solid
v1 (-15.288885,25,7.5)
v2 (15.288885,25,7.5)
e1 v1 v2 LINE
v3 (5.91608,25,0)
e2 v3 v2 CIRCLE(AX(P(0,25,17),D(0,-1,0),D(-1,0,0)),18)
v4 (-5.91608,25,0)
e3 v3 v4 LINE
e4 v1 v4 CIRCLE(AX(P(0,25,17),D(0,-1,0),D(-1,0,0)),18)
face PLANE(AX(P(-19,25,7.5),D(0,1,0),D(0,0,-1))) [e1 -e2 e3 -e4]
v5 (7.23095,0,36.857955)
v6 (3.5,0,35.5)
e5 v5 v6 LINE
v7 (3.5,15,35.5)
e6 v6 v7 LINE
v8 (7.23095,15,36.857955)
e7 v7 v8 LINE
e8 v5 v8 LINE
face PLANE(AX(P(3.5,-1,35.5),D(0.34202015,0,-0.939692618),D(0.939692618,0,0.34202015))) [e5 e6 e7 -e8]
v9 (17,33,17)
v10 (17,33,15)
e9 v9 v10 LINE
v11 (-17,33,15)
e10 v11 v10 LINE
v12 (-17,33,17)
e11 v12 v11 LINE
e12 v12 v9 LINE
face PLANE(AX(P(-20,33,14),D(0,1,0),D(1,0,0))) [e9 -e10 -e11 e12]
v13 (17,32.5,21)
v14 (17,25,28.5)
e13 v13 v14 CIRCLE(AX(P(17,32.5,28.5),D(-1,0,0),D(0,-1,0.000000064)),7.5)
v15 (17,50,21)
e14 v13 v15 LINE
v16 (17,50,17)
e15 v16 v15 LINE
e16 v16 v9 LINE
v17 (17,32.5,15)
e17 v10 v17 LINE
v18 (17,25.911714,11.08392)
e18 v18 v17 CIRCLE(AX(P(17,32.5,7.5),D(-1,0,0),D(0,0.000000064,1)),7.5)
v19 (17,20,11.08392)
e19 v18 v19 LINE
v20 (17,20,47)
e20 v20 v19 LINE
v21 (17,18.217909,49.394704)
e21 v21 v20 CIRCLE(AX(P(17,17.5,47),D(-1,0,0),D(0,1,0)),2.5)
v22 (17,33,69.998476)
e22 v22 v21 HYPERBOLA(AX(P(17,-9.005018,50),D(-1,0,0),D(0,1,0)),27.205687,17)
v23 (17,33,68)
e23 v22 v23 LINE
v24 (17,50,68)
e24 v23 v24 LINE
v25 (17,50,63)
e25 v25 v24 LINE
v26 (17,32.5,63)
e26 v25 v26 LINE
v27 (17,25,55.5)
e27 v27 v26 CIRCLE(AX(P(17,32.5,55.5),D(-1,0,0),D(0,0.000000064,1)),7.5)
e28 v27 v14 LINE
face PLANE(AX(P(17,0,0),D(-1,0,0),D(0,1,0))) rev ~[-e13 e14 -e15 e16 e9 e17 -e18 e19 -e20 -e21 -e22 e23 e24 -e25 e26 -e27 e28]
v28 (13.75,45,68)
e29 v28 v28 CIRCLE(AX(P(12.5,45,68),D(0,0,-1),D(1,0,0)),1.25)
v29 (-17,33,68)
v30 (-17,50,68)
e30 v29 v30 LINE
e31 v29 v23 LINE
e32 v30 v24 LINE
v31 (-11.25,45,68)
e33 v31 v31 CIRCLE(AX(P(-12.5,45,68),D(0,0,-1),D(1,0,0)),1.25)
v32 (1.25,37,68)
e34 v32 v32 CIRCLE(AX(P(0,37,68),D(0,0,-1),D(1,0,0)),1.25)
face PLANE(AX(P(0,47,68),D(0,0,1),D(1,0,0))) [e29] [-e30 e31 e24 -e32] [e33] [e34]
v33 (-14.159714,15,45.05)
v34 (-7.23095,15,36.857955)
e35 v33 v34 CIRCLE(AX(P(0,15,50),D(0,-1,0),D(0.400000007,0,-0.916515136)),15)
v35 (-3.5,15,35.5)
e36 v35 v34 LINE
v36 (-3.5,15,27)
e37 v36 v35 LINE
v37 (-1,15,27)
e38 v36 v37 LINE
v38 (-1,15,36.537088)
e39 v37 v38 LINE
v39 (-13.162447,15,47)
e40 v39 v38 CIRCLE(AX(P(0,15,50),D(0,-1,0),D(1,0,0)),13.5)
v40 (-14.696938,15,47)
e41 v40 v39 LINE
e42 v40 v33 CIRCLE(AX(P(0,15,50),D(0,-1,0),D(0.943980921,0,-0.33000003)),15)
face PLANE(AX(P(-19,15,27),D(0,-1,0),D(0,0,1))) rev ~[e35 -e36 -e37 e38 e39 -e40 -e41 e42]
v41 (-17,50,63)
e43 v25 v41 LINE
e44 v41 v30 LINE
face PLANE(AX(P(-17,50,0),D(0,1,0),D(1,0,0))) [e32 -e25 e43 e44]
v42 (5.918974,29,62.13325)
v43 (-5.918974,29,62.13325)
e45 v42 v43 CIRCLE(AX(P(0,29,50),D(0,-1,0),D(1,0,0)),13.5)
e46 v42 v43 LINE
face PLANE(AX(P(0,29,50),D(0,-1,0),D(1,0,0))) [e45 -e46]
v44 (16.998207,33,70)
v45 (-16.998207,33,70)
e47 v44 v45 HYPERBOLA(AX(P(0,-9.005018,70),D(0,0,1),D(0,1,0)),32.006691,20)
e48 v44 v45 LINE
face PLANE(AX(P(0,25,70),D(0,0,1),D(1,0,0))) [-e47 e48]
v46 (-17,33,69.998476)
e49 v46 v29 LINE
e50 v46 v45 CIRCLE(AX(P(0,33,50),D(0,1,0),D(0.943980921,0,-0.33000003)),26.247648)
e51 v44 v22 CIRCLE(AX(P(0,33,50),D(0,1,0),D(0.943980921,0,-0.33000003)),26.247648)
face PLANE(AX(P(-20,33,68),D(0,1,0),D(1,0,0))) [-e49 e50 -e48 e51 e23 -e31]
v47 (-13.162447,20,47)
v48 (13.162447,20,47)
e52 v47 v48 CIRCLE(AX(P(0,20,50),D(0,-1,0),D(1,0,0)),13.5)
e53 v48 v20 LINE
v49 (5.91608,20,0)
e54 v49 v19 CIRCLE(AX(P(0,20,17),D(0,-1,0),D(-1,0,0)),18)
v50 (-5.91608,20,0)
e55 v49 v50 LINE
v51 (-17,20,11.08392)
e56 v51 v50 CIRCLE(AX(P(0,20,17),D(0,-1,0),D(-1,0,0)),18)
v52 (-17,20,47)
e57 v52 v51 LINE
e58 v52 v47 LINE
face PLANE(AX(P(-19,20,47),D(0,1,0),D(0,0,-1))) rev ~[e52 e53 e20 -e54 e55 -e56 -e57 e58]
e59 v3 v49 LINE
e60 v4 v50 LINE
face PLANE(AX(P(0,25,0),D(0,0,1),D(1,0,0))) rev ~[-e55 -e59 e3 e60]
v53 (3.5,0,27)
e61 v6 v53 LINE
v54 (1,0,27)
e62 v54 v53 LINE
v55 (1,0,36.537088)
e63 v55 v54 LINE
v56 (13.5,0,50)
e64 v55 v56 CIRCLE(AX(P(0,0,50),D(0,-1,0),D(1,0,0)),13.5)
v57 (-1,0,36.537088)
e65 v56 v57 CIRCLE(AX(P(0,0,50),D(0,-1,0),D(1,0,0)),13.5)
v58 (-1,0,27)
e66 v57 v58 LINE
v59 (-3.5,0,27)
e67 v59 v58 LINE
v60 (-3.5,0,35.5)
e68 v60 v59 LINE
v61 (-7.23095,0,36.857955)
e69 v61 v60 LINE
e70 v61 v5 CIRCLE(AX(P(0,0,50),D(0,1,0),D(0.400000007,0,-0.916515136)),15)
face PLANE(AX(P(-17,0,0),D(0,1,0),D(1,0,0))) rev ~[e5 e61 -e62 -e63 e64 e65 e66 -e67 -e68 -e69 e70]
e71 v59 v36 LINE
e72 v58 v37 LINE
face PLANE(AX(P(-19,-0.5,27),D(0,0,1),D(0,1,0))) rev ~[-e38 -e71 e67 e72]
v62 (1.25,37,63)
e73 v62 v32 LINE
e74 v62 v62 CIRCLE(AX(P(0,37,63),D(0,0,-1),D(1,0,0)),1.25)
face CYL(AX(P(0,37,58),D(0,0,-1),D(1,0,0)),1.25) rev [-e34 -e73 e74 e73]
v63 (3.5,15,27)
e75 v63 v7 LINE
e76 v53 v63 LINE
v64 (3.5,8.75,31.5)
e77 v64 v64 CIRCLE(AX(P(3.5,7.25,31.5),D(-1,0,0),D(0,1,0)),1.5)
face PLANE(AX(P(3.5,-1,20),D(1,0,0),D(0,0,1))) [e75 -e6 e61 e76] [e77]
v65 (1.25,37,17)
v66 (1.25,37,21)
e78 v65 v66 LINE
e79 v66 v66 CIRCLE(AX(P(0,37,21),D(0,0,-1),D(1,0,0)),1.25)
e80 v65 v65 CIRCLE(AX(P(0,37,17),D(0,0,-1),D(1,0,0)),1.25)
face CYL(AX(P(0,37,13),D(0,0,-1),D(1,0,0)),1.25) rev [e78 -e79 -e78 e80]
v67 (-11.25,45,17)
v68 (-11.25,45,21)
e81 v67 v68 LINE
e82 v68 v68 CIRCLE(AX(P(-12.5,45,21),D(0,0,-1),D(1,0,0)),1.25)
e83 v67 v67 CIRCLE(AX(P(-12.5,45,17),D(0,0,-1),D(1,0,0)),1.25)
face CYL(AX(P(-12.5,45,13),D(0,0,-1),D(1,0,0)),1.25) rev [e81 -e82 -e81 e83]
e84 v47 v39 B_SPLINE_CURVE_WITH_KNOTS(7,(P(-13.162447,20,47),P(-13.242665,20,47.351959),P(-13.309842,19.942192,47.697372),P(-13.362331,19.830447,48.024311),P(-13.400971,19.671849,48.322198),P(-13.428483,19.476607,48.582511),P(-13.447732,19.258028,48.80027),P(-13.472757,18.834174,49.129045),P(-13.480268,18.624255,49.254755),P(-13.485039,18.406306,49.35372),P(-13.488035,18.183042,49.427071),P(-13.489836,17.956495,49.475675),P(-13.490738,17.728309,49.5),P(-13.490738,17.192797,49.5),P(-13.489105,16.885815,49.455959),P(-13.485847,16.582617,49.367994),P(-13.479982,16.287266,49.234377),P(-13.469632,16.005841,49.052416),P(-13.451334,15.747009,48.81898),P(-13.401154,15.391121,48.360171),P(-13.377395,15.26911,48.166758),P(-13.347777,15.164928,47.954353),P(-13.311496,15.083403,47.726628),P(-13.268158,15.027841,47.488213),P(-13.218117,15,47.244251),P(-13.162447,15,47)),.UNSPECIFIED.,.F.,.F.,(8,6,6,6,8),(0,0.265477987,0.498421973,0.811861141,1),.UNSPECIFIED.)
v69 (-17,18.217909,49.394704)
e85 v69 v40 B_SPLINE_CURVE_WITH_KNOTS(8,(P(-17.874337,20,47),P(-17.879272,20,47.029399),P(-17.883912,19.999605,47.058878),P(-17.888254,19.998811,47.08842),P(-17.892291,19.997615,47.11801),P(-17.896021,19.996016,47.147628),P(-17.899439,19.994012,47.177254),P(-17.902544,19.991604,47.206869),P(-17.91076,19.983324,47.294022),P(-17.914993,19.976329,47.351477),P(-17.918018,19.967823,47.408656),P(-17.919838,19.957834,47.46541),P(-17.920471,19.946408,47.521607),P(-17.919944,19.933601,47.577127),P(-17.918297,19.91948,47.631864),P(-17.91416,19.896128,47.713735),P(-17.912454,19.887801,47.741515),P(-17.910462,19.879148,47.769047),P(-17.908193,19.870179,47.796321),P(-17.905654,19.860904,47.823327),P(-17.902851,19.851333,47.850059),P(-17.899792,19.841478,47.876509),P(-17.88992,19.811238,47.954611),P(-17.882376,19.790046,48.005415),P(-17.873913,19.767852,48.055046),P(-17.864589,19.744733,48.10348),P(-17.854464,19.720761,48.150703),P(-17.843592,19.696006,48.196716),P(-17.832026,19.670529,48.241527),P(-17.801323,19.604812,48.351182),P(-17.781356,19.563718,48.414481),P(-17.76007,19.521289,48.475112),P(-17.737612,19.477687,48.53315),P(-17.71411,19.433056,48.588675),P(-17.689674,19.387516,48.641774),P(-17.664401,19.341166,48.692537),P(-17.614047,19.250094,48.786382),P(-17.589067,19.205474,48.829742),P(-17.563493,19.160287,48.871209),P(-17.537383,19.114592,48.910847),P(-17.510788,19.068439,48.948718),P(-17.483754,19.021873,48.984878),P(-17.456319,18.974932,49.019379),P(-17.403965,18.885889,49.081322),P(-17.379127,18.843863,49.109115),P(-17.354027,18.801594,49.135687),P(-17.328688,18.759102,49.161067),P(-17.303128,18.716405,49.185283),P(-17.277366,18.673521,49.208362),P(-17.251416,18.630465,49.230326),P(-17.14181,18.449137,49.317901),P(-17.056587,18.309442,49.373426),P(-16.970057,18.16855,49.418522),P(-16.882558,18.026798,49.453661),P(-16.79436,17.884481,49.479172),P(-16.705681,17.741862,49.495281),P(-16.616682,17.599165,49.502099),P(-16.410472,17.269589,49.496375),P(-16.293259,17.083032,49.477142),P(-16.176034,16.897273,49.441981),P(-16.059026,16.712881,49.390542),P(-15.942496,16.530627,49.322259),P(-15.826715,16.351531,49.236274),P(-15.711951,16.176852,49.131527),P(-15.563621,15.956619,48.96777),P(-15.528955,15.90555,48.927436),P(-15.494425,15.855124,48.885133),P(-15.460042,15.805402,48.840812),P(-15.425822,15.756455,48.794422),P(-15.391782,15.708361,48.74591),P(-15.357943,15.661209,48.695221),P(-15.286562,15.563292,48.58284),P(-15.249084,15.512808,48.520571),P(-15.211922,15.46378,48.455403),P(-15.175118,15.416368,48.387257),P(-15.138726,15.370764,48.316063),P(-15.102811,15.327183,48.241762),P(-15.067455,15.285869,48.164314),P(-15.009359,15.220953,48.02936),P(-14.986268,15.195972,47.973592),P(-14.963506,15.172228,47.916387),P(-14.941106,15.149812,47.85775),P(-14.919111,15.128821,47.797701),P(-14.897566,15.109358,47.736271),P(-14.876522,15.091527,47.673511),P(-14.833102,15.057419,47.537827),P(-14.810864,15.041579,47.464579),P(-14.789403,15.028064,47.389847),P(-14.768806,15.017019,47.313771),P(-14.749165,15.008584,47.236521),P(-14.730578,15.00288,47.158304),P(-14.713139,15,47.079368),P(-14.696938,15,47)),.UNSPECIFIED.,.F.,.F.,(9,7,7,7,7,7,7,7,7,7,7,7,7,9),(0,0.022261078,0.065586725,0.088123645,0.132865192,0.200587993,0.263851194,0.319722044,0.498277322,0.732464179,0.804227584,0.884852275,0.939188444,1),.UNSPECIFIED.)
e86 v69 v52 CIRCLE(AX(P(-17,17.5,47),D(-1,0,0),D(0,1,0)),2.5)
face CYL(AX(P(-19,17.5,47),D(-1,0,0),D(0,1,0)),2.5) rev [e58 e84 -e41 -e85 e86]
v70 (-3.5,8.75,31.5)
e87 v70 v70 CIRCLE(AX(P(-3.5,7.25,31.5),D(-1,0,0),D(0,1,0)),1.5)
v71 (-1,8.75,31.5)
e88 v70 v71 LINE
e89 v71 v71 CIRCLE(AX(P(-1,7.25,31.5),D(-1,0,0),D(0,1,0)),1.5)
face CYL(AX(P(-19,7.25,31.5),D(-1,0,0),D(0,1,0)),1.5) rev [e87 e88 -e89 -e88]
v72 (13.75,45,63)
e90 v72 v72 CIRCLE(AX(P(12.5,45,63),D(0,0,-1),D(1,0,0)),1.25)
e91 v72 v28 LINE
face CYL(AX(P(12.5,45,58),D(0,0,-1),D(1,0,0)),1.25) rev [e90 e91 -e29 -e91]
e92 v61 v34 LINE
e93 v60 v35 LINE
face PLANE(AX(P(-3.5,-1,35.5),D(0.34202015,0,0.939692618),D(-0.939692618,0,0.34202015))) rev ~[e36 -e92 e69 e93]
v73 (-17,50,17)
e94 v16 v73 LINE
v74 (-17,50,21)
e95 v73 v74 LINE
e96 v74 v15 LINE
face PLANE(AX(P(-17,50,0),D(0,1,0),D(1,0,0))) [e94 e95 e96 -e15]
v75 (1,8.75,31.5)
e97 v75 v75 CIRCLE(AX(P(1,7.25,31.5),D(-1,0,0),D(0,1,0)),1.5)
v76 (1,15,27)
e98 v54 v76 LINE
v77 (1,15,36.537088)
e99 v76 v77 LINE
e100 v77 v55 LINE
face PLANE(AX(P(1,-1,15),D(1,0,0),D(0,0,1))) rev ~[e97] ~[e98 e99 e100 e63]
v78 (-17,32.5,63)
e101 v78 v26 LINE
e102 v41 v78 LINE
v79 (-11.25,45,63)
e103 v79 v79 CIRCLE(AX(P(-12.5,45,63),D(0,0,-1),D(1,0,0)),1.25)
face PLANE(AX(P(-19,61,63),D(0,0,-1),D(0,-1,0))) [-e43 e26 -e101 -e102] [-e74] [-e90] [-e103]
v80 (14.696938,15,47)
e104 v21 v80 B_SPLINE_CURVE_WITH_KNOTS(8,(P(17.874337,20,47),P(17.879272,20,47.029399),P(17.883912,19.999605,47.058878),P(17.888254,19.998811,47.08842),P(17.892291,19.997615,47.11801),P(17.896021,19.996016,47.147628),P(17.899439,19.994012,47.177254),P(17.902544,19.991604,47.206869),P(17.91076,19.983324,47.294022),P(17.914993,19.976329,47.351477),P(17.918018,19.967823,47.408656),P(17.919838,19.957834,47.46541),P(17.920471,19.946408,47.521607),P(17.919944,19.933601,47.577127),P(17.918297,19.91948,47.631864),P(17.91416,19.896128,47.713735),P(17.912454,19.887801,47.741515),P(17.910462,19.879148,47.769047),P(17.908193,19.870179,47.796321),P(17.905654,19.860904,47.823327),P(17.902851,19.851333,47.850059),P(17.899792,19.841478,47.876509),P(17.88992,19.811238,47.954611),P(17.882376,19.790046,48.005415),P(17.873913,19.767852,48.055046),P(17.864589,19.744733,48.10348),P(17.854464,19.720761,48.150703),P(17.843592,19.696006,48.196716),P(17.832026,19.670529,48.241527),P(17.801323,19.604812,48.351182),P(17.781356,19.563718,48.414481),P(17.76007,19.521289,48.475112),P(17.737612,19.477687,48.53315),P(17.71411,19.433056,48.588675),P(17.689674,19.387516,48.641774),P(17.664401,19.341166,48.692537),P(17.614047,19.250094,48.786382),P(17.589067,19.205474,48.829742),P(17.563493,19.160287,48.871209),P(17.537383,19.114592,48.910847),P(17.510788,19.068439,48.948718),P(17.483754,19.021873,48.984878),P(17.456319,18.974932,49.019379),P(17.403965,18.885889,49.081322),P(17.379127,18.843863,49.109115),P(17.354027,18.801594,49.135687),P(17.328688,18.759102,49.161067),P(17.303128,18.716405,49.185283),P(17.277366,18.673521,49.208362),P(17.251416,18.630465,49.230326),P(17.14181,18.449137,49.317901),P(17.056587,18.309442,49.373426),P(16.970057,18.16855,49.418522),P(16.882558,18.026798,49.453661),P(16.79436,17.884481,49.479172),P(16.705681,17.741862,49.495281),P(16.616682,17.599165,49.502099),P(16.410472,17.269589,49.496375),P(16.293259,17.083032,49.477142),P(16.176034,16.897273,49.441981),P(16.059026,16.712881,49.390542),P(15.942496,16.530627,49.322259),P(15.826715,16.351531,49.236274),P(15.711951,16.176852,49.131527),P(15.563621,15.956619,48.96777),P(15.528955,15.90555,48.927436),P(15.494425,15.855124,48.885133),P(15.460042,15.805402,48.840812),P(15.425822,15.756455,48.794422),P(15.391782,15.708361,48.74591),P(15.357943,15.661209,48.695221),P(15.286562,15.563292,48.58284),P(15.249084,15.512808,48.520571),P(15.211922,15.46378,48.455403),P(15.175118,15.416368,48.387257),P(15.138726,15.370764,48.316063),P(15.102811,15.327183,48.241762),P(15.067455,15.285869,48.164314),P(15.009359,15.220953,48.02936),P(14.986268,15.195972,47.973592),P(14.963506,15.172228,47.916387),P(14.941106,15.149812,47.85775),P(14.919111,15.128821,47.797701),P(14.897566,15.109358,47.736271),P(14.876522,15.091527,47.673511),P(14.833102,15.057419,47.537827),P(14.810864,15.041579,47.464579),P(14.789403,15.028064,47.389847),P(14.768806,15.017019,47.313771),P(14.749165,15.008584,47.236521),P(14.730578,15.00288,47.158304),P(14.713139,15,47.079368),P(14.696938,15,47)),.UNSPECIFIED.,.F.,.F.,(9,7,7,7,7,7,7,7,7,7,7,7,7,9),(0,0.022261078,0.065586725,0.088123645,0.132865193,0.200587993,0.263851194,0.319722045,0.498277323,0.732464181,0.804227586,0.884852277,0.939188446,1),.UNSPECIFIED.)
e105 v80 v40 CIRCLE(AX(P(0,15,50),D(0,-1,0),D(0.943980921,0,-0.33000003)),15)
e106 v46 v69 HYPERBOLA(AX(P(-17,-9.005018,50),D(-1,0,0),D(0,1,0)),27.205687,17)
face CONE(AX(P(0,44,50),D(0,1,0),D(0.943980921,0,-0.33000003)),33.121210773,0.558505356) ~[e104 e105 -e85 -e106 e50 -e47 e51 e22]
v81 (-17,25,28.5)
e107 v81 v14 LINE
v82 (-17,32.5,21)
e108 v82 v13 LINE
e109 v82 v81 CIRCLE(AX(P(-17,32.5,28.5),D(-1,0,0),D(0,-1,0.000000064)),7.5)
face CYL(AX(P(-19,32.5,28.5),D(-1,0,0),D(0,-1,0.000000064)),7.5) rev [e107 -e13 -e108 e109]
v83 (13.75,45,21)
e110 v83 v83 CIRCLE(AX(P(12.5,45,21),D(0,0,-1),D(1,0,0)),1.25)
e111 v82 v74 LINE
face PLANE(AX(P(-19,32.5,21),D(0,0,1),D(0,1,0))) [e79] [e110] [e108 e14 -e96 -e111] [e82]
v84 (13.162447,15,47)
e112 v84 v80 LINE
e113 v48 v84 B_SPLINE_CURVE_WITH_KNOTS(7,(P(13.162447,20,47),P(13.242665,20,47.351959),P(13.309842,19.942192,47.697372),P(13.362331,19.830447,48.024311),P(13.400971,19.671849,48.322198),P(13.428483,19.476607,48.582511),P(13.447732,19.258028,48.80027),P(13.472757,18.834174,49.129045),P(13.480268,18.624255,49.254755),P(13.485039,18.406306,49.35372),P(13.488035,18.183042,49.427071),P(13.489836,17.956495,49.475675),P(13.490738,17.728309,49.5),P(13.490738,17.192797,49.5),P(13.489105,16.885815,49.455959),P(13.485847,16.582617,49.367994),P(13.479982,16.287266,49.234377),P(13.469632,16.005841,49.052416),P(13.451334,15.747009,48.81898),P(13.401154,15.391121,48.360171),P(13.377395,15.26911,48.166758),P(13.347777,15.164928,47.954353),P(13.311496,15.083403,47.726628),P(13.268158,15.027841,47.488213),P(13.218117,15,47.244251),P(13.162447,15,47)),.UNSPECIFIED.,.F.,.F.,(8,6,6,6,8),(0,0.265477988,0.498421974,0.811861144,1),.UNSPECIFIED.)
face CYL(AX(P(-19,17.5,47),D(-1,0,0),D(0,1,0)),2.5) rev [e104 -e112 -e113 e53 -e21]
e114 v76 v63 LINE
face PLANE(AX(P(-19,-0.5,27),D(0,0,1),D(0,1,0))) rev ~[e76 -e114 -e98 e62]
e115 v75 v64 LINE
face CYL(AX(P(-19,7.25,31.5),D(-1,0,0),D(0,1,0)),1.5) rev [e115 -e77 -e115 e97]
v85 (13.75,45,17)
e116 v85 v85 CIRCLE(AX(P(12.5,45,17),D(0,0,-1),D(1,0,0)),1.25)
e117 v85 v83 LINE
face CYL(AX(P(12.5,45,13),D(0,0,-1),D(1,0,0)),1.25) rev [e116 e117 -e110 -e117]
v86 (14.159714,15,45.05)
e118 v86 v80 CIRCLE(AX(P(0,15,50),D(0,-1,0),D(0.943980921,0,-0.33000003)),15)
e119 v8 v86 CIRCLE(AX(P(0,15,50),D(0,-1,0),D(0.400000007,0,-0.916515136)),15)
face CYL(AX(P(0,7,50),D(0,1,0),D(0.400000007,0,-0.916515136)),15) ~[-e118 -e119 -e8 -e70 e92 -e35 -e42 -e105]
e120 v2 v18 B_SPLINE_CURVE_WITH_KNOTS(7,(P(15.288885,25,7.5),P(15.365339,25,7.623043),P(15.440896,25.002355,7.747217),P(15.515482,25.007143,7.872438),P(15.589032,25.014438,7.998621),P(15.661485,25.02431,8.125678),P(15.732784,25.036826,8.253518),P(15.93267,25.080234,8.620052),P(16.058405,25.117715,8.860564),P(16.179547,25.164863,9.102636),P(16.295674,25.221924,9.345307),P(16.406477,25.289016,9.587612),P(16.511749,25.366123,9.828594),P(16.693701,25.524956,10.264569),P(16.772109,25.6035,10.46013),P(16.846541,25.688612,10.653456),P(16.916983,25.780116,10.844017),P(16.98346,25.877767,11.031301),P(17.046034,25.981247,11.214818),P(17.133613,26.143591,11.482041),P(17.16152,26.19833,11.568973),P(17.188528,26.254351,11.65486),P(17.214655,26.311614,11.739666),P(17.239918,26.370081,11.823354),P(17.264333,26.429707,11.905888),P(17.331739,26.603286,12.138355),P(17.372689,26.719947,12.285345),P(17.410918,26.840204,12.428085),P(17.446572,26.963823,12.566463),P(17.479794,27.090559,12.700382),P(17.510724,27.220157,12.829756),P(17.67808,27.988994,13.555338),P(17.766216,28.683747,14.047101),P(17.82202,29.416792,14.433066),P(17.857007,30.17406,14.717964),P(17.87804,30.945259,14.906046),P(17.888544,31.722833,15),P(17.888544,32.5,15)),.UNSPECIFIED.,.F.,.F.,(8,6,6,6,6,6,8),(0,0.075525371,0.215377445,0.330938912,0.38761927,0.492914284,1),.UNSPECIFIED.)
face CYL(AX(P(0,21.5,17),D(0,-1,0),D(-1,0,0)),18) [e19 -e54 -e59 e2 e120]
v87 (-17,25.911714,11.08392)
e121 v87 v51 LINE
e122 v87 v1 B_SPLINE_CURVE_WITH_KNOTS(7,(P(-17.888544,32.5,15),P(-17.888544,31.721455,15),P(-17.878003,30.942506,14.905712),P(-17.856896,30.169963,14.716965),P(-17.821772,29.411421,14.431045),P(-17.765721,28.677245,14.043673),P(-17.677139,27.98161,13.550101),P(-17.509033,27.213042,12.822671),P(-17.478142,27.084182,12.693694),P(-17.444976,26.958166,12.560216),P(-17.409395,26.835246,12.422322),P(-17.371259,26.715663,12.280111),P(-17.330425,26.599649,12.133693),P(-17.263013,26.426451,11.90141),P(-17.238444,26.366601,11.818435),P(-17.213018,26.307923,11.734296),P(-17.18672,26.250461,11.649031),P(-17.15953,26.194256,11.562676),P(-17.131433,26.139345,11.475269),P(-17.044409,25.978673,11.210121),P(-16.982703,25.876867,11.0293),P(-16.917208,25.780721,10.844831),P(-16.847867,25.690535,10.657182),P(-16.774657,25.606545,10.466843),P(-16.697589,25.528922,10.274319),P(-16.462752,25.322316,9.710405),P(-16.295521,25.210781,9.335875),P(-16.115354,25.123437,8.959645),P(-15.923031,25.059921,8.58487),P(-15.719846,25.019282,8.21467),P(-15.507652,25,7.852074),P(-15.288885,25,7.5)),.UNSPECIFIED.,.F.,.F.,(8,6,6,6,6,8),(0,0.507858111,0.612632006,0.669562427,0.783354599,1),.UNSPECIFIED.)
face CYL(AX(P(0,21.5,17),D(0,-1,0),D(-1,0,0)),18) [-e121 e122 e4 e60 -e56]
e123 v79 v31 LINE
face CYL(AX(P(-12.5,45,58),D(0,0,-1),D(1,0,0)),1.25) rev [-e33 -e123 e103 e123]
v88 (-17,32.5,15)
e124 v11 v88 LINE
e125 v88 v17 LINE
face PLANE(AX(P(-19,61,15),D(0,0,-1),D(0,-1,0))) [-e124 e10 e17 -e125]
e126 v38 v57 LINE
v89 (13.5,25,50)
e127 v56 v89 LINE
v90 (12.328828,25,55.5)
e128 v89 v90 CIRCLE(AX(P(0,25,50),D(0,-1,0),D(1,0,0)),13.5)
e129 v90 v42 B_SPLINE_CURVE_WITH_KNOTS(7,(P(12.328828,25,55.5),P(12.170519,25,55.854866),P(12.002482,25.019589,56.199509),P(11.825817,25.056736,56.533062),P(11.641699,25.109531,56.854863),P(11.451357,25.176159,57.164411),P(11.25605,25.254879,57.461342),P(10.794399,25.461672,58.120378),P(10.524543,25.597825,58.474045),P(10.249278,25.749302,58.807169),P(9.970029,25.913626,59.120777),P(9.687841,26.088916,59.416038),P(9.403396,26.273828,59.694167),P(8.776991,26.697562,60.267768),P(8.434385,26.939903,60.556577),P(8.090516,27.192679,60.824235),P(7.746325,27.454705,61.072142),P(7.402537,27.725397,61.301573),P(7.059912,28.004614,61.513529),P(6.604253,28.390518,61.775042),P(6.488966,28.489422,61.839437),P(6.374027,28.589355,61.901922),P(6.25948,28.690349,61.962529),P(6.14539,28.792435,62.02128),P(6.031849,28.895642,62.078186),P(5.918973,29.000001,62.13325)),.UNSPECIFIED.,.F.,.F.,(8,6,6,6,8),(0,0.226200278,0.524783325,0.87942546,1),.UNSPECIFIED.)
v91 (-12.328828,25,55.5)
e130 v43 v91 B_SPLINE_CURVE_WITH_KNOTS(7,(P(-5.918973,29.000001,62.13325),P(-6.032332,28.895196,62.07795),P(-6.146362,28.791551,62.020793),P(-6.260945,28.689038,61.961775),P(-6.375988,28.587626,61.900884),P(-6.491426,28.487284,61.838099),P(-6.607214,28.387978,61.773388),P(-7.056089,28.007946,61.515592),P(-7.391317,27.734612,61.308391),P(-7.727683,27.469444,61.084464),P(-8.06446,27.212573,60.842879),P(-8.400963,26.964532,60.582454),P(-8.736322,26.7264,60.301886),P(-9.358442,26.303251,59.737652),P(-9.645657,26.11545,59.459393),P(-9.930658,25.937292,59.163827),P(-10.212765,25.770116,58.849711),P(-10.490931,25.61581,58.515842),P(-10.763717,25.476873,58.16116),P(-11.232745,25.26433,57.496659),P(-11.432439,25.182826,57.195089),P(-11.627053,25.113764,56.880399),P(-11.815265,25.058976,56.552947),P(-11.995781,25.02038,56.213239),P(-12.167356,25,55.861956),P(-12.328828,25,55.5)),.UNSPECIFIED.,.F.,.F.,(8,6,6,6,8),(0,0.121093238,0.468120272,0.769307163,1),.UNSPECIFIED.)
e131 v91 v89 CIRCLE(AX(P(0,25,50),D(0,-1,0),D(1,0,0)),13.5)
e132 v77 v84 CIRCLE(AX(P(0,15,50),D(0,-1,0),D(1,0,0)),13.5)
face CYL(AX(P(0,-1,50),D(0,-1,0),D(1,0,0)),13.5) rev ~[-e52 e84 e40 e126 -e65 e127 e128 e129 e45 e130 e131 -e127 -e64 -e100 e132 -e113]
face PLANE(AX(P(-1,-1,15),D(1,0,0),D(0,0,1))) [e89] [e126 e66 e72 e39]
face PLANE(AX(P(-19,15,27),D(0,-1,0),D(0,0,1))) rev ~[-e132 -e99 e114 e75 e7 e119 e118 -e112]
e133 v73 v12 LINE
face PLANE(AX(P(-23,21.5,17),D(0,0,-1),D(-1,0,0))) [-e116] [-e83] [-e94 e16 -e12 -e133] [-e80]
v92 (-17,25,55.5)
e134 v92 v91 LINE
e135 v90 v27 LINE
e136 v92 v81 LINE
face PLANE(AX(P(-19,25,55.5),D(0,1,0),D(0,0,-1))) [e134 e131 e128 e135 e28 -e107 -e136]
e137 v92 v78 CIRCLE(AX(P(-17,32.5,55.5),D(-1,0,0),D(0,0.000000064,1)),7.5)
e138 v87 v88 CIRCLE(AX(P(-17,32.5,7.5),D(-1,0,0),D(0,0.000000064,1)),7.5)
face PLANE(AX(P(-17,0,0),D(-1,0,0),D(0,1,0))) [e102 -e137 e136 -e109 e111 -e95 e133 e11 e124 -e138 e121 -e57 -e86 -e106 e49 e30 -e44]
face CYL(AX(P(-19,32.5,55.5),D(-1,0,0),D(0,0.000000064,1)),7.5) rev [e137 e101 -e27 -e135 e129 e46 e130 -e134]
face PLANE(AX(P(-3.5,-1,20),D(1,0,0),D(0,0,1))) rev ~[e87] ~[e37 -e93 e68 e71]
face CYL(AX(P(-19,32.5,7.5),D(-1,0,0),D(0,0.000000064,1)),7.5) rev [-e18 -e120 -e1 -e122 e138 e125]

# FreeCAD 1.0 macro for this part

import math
import FreeCAD as App
import Part
import Sketcher
Q = App.Units.Quantity


def add_polygon(sketch, points):
    """Adds a closed chain of lines whose ends are joined by coincident constraints."""
    first, n = sketch.GeometryCount, len(points)
    for a, b in zip(points, points[1:] + points[:1]):
        sketch.addGeometry(Part.LineSegment(App.Vector(*a, 0), App.Vector(*b, 0)), False)
    for i in range(n):
        sketch.addConstraint(Sketcher.Constraint("Coincident", first + i, 2, first + (i + 1) % n, 1))

doc = App.newDocument("Part")
body = doc.addObject("PartDesign::Body", "Body")

# Sketch on XY plane
sketch1 = body.newObject("Sketcher::SketchObject", "Sketch")
sketch1.AttachmentSupport = (doc.getObject("XY_Plane"), [""])
sketch1.MapMode = "FlatFace"
sketch1.addGeometry(Part.Circle(App.Vector(0, 50, 0), App.Vector(0, 0, 1), 13.5), False)
sketch1.addConstraint(Sketcher.Constraint("PointOnObject", 0, 3, -2))
sketch1.addConstraint(Sketcher.Constraint("Diameter", 0, Q("27 mm")))
sketch1.addConstraint(Sketcher.Constraint("DistanceY", -1, 1, 0, 3, Q("50 mm")))
pad1 = body.newObject("PartDesign::Pad", "Pad")
pad1.Profile = sketch1
pad1.Length = 30
pad1.Reversed = True
body2 = doc.addObject("PartDesign::Body", "Body001")
doc.recompute()

body.Placement = App.Placement(App.Vector(0, 0, 0), App.Rotation(App.Vector(1, 0, 0), 90))
boolean = body2.newObject("PartDesign::Boolean", "Boolean")
boolean.Type = "Fuse"
boolean.addObjects([body])
body3 = doc.addObject("PartDesign::Body", "Body002")
doc.recompute()

body2.Placement = App.Placement(App.Vector(0, -1, 0), App.Rotation(App.Vector(0, 0, 1), 0))
boolean2 = body3.newObject("PartDesign::Boolean", "Boolean001")
boolean2.Type = "Fuse"
boolean2.addObjects([body2])
body4 = doc.addObject("PartDesign::Body", "Body003")
body4.AllowCompound = True

# Sketch on XY plane
sketch2 = body4.newObject("Sketcher::SketchObject", "Sketch001")
sketch2.AttachmentSupport = (doc.getObject("XY_Plane003"), [""])
sketch2.MapMode = "FlatFace"
add_polygon(sketch2, [(20, 41.505509), (3.5, 35.5), (3.5, 20), (20, 20)])  # lines 0-3
add_polygon(sketch2, [(-3.5, 35.5), (-20, 41.505509), (-20, 20), (-3.5, 20)])  # lines 4-7
add_polygon(sketch2, [(-1, 40), (-1, 15), (1, 15), (1, 40)])  # lines 8-11
sketch2.addConstraint(Sketcher.Constraint("Vertical", 1))
sketch2.addConstraint(Sketcher.Constraint("Horizontal", 2))
sketch2.addConstraint(Sketcher.Constraint("Vertical", 3))
sketch2.addConstraint(Sketcher.Constraint("Vertical", 5))
sketch2.addConstraint(Sketcher.Constraint("Horizontal", 6))
sketch2.addConstraint(Sketcher.Constraint("Vertical", 7))
sketch2.addConstraint(Sketcher.Constraint("Vertical", 8))
sketch2.addConstraint(Sketcher.Constraint("Horizontal", 9))
sketch2.addConstraint(Sketcher.Constraint("Vertical", 10))
sketch2.addConstraint(Sketcher.Constraint("Horizontal", 11))
sketch2.addConstraint(Sketcher.Constraint("Symmetric", 3, 2, 4, 2, -2))
sketch2.addConstraint(Sketcher.Constraint("Symmetric", 1, 2, 6, 2, -2))
sketch2.addConstraint(Sketcher.Constraint("Horizontal", 0, 2, 7, 2))
sketch2.addConstraint(Sketcher.Constraint("DistanceX", 9, 1, 9, 2, Q("2 mm")))
sketch2.addConstraint(Sketcher.Constraint("DistanceY", 8, 2, 8, 1, Q("25 mm")))
sketch2.addConstraint(Sketcher.Constraint("Angle", 0, Q("-160 deg")))
sketch2.addConstraint(Sketcher.Constraint("DistanceX", 2, 1, 2, 2, Q("16.5 mm")))
sketch2.addConstraint(Sketcher.Constraint("DistanceY", 1, 2, 1, 1, Q("15.5 mm")))
sketch2.addConstraint(Sketcher.Constraint("DistanceY", -1, 1, 1, 2, Q("20 mm")))
sketch2.addConstraint(Sketcher.Constraint("DistanceX", -1, 1, 2, 2, Q("20 mm")))
sketch2.addConstraint(Sketcher.Constraint("DistanceX", 8, 2, -1, 1, Q("1 mm")))
sketch2.addConstraint(Sketcher.Constraint("DistanceY", -1, 1, 8, 2, Q("15 mm")))
pad2 = body4.newObject("PartDesign::Pad", "Pad001")
pad2.Profile = sketch2
pad2.Length = 20
pad2.Reversed = True
body5 = doc.addObject("PartDesign::Body", "Body004")
body5.AllowCompound = True
doc.recompute()

body4.Placement = App.Placement(App.Vector(0, 0, 0), App.Rotation(App.Vector(1, 0, 0), 90))
boolean3 = body5.newObject("PartDesign::Boolean", "Boolean002")
boolean3.Type = "Fuse"
boolean3.addObjects([body4])
body6 = doc.addObject("PartDesign::Body", "Body005")
body6.AllowCompound = True
doc.recompute()

body5.Placement = App.Placement(App.Vector(0, -1, 0), App.Rotation(App.Vector(0, 0, 1), 0))
boolean4 = body6.newObject("PartDesign::Boolean", "Boolean003")
boolean4.Type = "Fuse"
boolean4.addObjects([body5])
body7 = doc.addObject("PartDesign::Body", "Body006")

# Sketch on XY plane
sketch3 = body7.newObject("Sketcher::SketchObject", "Sketch002")
sketch3.AttachmentSupport = (doc.getObject("XY_Plane006"), [""])
sketch3.MapMode = "FlatFace"
add_polygon(sketch3, [(-20, 61), (-20, 33), (20, 33), (20, 61)])  # lines 0-3
sketch3.addConstraint(Sketcher.Constraint("Vertical", 0))
sketch3.addConstraint(Sketcher.Constraint("Horizontal", 1))
sketch3.addConstraint(Sketcher.Constraint("Vertical", 2))
sketch3.addConstraint(Sketcher.Constraint("Horizontal", 3))
sketch3.addConstraint(Sketcher.Constraint("DistanceX", 1, 1, 1, 2, Q("40 mm")))
sketch3.addConstraint(Sketcher.Constraint("DistanceY", 0, 2, 0, 1, Q("28 mm")))
sketch3.addConstraint(Sketcher.Constraint("DistanceX", 0, 2, -1, 1, Q("20 mm")))
sketch3.addConstraint(Sketcher.Constraint("DistanceY", -1, 1, 0, 2, Q("33 mm")))
pad3 = body7.newObject("PartDesign::Pad", "Pad002")
pad3.Profile = sketch3
pad3.Length = 3
body8 = doc.addObject("PartDesign::Body", "Body007")
doc.recompute()

body7.Placement = App.Placement(App.Vector(0, 0, 68), App.Rotation(App.Vector(0, 0, 1), 0))
boolean5 = body8.newObject("PartDesign::Boolean", "Boolean004")
boolean5.Type = "Fuse"
boolean5.addObjects([body7])
body9 = doc.addObject("PartDesign::Body", "Body008")

# Sketch on XY plane
sketch4 = body9.newObject("Sketcher::SketchObject", "Sketch003")
sketch4.AttachmentSupport = (doc.getObject("XY_Plane008"), [""])
sketch4.MapMode = "FlatFace"
add_polygon(sketch4, [(-20, 61), (-20, 33), (20, 33), (20, 61)])  # lines 0-3
sketch4.addConstraint(Sketcher.Constraint("Vertical", 0))
sketch4.addConstraint(Sketcher.Constraint("Horizontal", 1))
sketch4.addConstraint(Sketcher.Constraint("Vertical", 2))
sketch4.addConstraint(Sketcher.Constraint("Horizontal", 3))
sketch4.addConstraint(Sketcher.Constraint("DistanceX", 1, 1, 1, 2, Q("40 mm")))
sketch4.addConstraint(Sketcher.Constraint("DistanceY", 0, 2, 0, 1, Q("28 mm")))
sketch4.addConstraint(Sketcher.Constraint("DistanceX", 0, 2, -1, 1, Q("20 mm")))
sketch4.addConstraint(Sketcher.Constraint("DistanceY", -1, 1, 0, 2, Q("33 mm")))
pad4 = body9.newObject("PartDesign::Pad", "Pad003")
pad4.Profile = sketch4
pad4.Length = 3
body10 = doc.addObject("PartDesign::Body", "Body009")
doc.recompute()

body9.Placement = App.Placement(App.Vector(0, 0, 14), App.Rotation(App.Vector(0, 0, 1), 0))
boolean6 = body10.newObject("PartDesign::Boolean", "Boolean005")
boolean6.Type = "Fuse"
boolean6.addObjects([body9])
body11 = doc.addObject("PartDesign::Body", "Body010")
body11.AllowCompound = True

# Sketch on XY plane
sketch5 = body11.newObject("Sketcher::SketchObject", "Sketch004")
sketch5.AttachmentSupport = (doc.getObject("XY_Plane010"), [""])
sketch5.MapMode = "FlatFace"
sketch5.addGeometry(Part.Circle(App.Vector(-12.5, 45, 0), App.Vector(0, 0, 1), 1.25), False)
sketch5.addGeometry(Part.Circle(App.Vector(12.5, 45, 0), App.Vector(0, 0, 1), 1.25), False)
sketch5.addGeometry(Part.Circle(App.Vector(0, 37, 0), App.Vector(0, 0, 1), 1.25), False)
sketch5.addConstraint(Sketcher.Constraint("Equal", 0, 1))
sketch5.addConstraint(Sketcher.Constraint("Equal", 1, 2))
sketch5.addConstraint(Sketcher.Constraint("Symmetric", 0, 3, 1, 3, -2))
sketch5.addConstraint(Sketcher.Constraint("PointOnObject", 2, 3, -2))
sketch5.addConstraint(Sketcher.Constraint("Diameter", 0, Q("2.5 mm")))
sketch5.addConstraint(Sketcher.Constraint("DistanceY", -1, 1, 0, 3, Q("45 mm")))
sketch5.addConstraint(Sketcher.Constraint("DistanceY", -1, 1, 2, 3, Q("37 mm")))
sketch5.addConstraint(Sketcher.Constraint("DistanceX", 0, 3, 1, 3, Q("25 mm")))
pad5 = body11.newObject("PartDesign::Pad", "Pad004")
pad5.Profile = sketch5
pad5.Length = 15
body12 = doc.addObject("PartDesign::Body", "Body011")
body12.AllowCompound = True
doc.recompute()

body11.Placement = App.Placement(App.Vector(0, 0, 13), App.Rotation(App.Vector(0, 0, 1), 0))
boolean7 = body12.newObject("PartDesign::Boolean", "Boolean006")
boolean7.Type = "Fuse"
boolean7.addObjects([body11])
body13 = doc.addObject("PartDesign::Body", "Body012")
body13.AllowCompound = True

# Sketch on XY plane
sketch6 = body13.newObject("Sketcher::SketchObject", "Sketch005")
sketch6.AttachmentSupport = (doc.getObject("XY_Plane012"), [""])
sketch6.MapMode = "FlatFace"
sketch6.addGeometry(Part.Circle(App.Vector(-12.5, 45, 0), App.Vector(0, 0, 1), 1.25), False)
sketch6.addGeometry(Part.Circle(App.Vector(12.5, 45, 0), App.Vector(0, 0, 1), 1.25), False)
sketch6.addGeometry(Part.Circle(App.Vector(0, 37, 0), App.Vector(0, 0, 1), 1.25), False)
sketch6.addConstraint(Sketcher.Constraint("Equal", 0, 1))
sketch6.addConstraint(Sketcher.Constraint("Equal", 1, 2))
sketch6.addConstraint(Sketcher.Constraint("Symmetric", 0, 3, 1, 3, -2))
sketch6.addConstraint(Sketcher.Constraint("PointOnObject", 2, 3, -2))
sketch6.addConstraint(Sketcher.Constraint("Diameter", 0, Q("2.5 mm")))
sketch6.addConstraint(Sketcher.Constraint("DistanceY", -1, 1, 0, 3, Q("45 mm")))
sketch6.addConstraint(Sketcher.Constraint("DistanceY", -1, 1, 2, 3, Q("37 mm")))
sketch6.addConstraint(Sketcher.Constraint("DistanceX", 0, 3, 1, 3, Q("25 mm")))
pad6 = body13.newObject("PartDesign::Pad", "Pad005")
pad6.Profile = sketch6
pad6.Length = 15
body14 = doc.addObject("PartDesign::Body", "Body013")
body14.AllowCompound = True
doc.recompute()

body13.Placement = App.Placement(App.Vector(0, 0, 58), App.Rotation(App.Vector(0, 0, 1), 0))
boolean8 = body14.newObject("PartDesign::Boolean", "Boolean007")
boolean8.Type = "Fuse"
boolean8.addObjects([body13])
body15 = doc.addObject("PartDesign::Body", "Body014")

# Sketch on YZ plane
sketch7 = body15.newObject("Sketcher::SketchObject", "Sketch006")
sketch7.AttachmentSupport = (doc.getObject("YZ_Plane014"), [""])
sketch7.MapMode = "FlatFace"
add_polygon(sketch7, [(-1, -1), (-1, -11), (44, -11), (44, -1)])  # lines 0-3
sketch7.addConstraint(Sketcher.Constraint("Vertical", 0))
sketch7.addConstraint(Sketcher.Constraint("Horizontal", 1))
sketch7.addConstraint(Sketcher.Constraint("Vertical", 2))
sketch7.addConstraint(Sketcher.Constraint("Horizontal", 3))
sketch7.addConstraint(Sketcher.Constraint("DistanceX", 1, 1, 1, 2, Q("45 mm")))
sketch7.addConstraint(Sketcher.Constraint("DistanceY", 0, 2, 0, 1, Q("10 mm")))
sketch7.addConstraint(Sketcher.Constraint("DistanceX", 0, 2, -1, 1, Q("1 mm")))
sketch7.addConstraint(Sketcher.Constraint("DistanceY", 0, 2, -1, 1, Q("11 mm")))

# Sketch on XZ plane
sketch8 = body15.newObject("Sketcher::SketchObject", "Sketch007")
sketch8.AttachmentSupport = (doc.getObject("XZ_Plane014"), [""])
sketch8.MapMode = "FlatFace"
sketch8.addGeometry(Part.ArcOfCircle(Part.Circle(App.Vector(0, 17, 0), App.Vector(0, 0, 1), 18), math.radians(180), math.radians(360)), False)
sketch8.addConstraint(Sketcher.Constraint("Symmetric", 0, 1, 0, 2, -2))
sketch8.addConstraint(Sketcher.Constraint("Radius", 0, Q("18 mm")))
sketch8.addConstraint(Sketcher.Constraint("DistanceY", -1, 1, 0, 3, Q("17 mm")))
sketch8.addConstraint(Sketcher.Constraint("DistanceY", -1, 1, 0, 1, Q("17 mm")))
doc.recompute()

additivepipe = body15.newObject("PartDesign::AdditivePipe", "AdditivePipe")
additivepipe.Profile = sketch7
additivepipe.Spine = (sketch8, ["Edge1"])
body16 = doc.addObject("PartDesign::Body", "Body015")
body16.AllowCompound = True

# Sketch on YZ plane
sketch9 = body16.newObject("Sketcher::SketchObject", "Sketch008")
sketch9.AttachmentSupport = (doc.getObject("YZ_Plane015"), [""])
sketch9.MapMode = "FlatFace"
sketch9.addGeometry(Part.Circle(App.Vector(7.25, 31.5, 0), App.Vector(0, 0, 1), 1.5), False)
sketch9.addGeometry(Part.LineSegment(App.Vector(61, 63, 0), App.Vector(32.5, 63, 0)), False)
sketch9.addGeometry(Part.ArcOfCircle(Part.Circle(App.Vector(32.5, 55.5, 0), App.Vector(0, 0, 1), 7.5), math.radians(89.999996), math.radians(180.000004)), False)
sketch9.addGeometry(Part.LineSegment(App.Vector(25, 55.5, 0), App.Vector(25, 28.5, 0)), False)
sketch9.addGeometry(Part.ArcOfCircle(Part.Circle(App.Vector(32.5, 28.5, 0), App.Vector(0, 0, 1), 7.5), math.radians(179.999996), math.radians(270.000004)), False)
sketch9.addGeometry(Part.LineSegment(App.Vector(32.5, 21, 0), App.Vector(61, 21, 0)), False)
sketch9.addGeometry(Part.LineSegment(App.Vector(61, 21, 0), App.Vector(61, 63, 0)), False)
sketch9.addGeometry(Part.LineSegment(App.Vector(61, 15, 0), App.Vector(32.5, 15, 0)), False)
sketch9.addGeometry(Part.ArcOfCircle(Part.Circle(App.Vector(32.5, 7.5, 0), App.Vector(0, 0, 1), 7.5), math.radians(89.999996), math.radians(180.000004)), False)
sketch9.addGeometry(Part.LineSegment(App.Vector(25, 7.5, 0), App.Vector(25, -2, 0)), False)
sketch9.addGeometry(Part.LineSegment(App.Vector(25, -2, 0), App.Vector(61, -2, 0)), False)
sketch9.addGeometry(Part.LineSegment(App.Vector(61, -2, 0), App.Vector(61, 15, 0)), False)
sketch9.addGeometry(Part.LineSegment(App.Vector(20, -2, 0), App.Vector(20, 47, 0)), False)
sketch9.addGeometry(Part.ArcOfCircle(Part.Circle(App.Vector(17.5, 47, 0), App.Vector(0, 0, 1), 2.5), math.radians(0), math.radians(180)), False)
sketch9.addGeometry(Part.LineSegment(App.Vector(15, 47, 0), App.Vector(15, 27, 0)), False)
sketch9.addGeometry(Part.LineSegment(App.Vector(15, 27, 0), App.Vector(-0.5, 27, 0)), False)
sketch9.addGeometry(Part.LineSegment(App.Vector(-0.5, 27, 0), App.Vector(-0.5, -2, 0)), False)
sketch9.addGeometry(Part.LineSegment(App.Vector(-0.5, -2, 0), App.Vector(20, -2, 0)), False)
sketch9.addConstraint(Sketcher.Constraint("Tangent", 1, 2, 2, 1))
sketch9.addConstraint(Sketcher.Constraint("Tangent", 2, 2, 3, 1))
sketch9.addConstraint(Sketcher.Constraint("Tangent", 3, 2, 4, 1))
sketch9.addConstraint(Sketcher.Constraint("Tangent", 4, 2, 5, 1))
sketch9.addConstraint(Sketcher.Constraint("Coincident", 5, 2, 6, 1))
sketch9.addConstraint(Sketcher.Constraint("Coincident", 6, 2, 1, 1))
sketch9.addConstraint(Sketcher.Constraint("Tangent", 7, 2, 8, 1))
sketch9.addConstraint(Sketcher.Constraint("Tangent", 8, 2, 9, 1))
sketch9.addConstraint(Sketcher.Constraint("Coincident", 9, 2, 10, 1))
sketch9.addConstraint(Sketcher.Constraint("Coincident", 10, 2, 11, 1))
sketch9.addConstraint(Sketcher.Constraint("Coincident", 11, 2, 7, 1))
sketch9.addConstraint(Sketcher.Constraint("Tangent", 12, 2, 13, 1))
sketch9.addConstraint(Sketcher.Constraint("Tangent", 13, 2, 14, 1))
sketch9.addConstraint(Sketcher.Constraint("Coincident", 14, 2, 15, 1))
sketch9.addConstraint(Sketcher.Constraint("Coincident", 15, 2, 16, 1))
sketch9.addConstraint(Sketcher.Constraint("Coincident", 16, 2, 17, 1))
sketch9.addConstraint(Sketcher.Constraint("Coincident", 17, 2, 12, 1))
sketch9.addConstraint(Sketcher.Constraint("Horizontal", 1))
sketch9.addConstraint(Sketcher.Constraint("Vertical", 3))
sketch9.addConstraint(Sketcher.Constraint("Horizontal", 5))
sketch9.addConstraint(Sketcher.Constraint("Vertical", 6))
sketch9.addConstraint(Sketcher.Constraint("Horizontal", 7))
sketch9.addConstraint(Sketcher.Constraint("Vertical", 9))
sketch9.addConstraint(Sketcher.Constraint("Horizontal", 10))
sketch9.addConstraint(Sketcher.Constraint("Vertical", 11))
sketch9.addConstraint(Sketcher.Constraint("Vertical", 12))
sketch9.addConstraint(Sketcher.Constraint("Vertical", 14))
sketch9.addConstraint(Sketcher.Constraint("Horizontal", 15))
sketch9.addConstraint(Sketcher.Constraint("Vertical", 16))
sketch9.addConstraint(Sketcher.Constraint("Horizontal", 17))
sketch9.addConstraint(Sketcher.Constraint("Equal", 2, 4))
sketch9.addConstraint(Sketcher.Constraint("Equal", 4, 8))
sketch9.addConstraint(Sketcher.Constraint("Horizontal", 10, 2, 16, 2))
sketch9.addConstraint(Sketcher.Constraint("Vertical", 4, 3, 8, 3))
sketch9.addConstraint(Sketcher.Constraint("Vertical", 6, 2, 10, 2))
sketch9.addConstraint(Sketcher.Constraint("Diameter", 0, Q("3 mm")))
sketch9.addConstraint(Sketcher.Constraint("Radius", 2, Q("7.5 mm")))
sketch9.addConstraint(Sketcher.Constraint("Radius", 13, Q("2.5 mm")))
sketch9.addConstraint(Sketcher.Constraint("DistanceX", 10, 1, 10, 2, Q("36 mm")))
sketch9.addConstraint(Sketcher.Constraint("DistanceY", 3, 2, 3, 1, Q("27 mm")))
sketch9.addConstraint(Sketcher.Constraint("DistanceY", 11, 1, 11, 2, Q("17 mm")))
sketch9.addConstraint(Sketcher.Constraint("DistanceY", 12, 1, 12, 2, Q("49 mm")))
sketch9.addConstraint(Sketcher.Constraint("DistanceY", 14, 2, 14, 1, Q("20 mm")))
sketch9.addConstraint(Sketcher.Constraint("DistanceX", 15, 2, 15, 1, Q("15.5 mm")))
sketch9.addConstraint(Sketcher.Constraint("DistanceY", -1, 1, 13, 3, Q("47 mm")))
sketch9.addConstraint(Sketcher.Constraint("DistanceY", -1, 1, 1, 2, Q("63 mm")))
sketch9.addConstraint(Sketcher.Constraint("DistanceX", -1, 1, 2, 2, Q("25 mm")))
sketch9.addConstraint(Sketcher.Constraint("DistanceX", -1, 1, 12, 2, Q("20 mm")))
sketch9.addConstraint(Sketcher.Constraint("DistanceY", 0, 3, 2, 3, Q("24 mm")))
sketch9.addConstraint(Sketcher.Constraint("DistanceX", -1, 1, 0, 3, Q("7.25 mm")))
pad7 = body16.newObject("PartDesign::Pad", "Pad006")
pad7.Profile = sketch9
pad7.Length = 38
body17 = doc.addObject("PartDesign::Body", "Body016")
body17.AllowCompound = True
doc.recompute()

body16.Placement = App.Placement(App.Vector(-19, 0, 0), App.Rotation(App.Vector(0, 0, 1), 0))
boolean9 = body17.newObject("PartDesign::Boolean", "Boolean008")
boolean9.Type = "Fuse"
boolean9.addObjects([body16])
doc.recompute()

boolean10 = body17.newObject("PartDesign::Boolean", "Boolean009")
boolean10.Type = "Fuse"
boolean10.addObjects([body3])
doc.recompute()

boolean11 = body17.newObject("PartDesign::Boolean", "Boolean010")
boolean11.Type = "Fuse"
boolean11.addObjects([body6])
doc.recompute()

boolean12 = body17.newObject("PartDesign::Boolean", "Boolean011")
boolean12.Type = "Fuse"
boolean12.addObjects([body8])
doc.recompute()

boolean13 = body17.newObject("PartDesign::Boolean", "Boolean012")
boolean13.Type = "Fuse"
boolean13.addObjects([body10])
doc.recompute()

boolean14 = body17.newObject("PartDesign::Boolean", "Boolean013")
boolean14.Type = "Fuse"
boolean14.addObjects([body12])
doc.recompute()

boolean15 = body17.newObject("PartDesign::Boolean", "Boolean014")
boolean15.Type = "Fuse"
boolean15.addObjects([body14])
doc.recompute()

boolean16 = body17.newObject("PartDesign::Boolean", "Boolean015")
boolean16.Type = "Fuse"
boolean16.addObjects([body15])
body18 = doc.addObject("PartDesign::Body", "Body017")

# Sketch on YZ plane
sketch10 = body18.newObject("Sketcher::SketchObject", "Sketch009")
sketch10.AttachmentSupport = (doc.getObject("YZ_Plane017"), [""])
sketch10.MapMode = "FlatFace"
add_polygon(sketch10, [(-1, 85), (-1, 65), (15, 65), (15, 85)])  # lines 0-3
sketch10.addConstraint(Sketcher.Constraint("Vertical", 0))
sketch10.addConstraint(Sketcher.Constraint("Horizontal", 1))
sketch10.addConstraint(Sketcher.Constraint("Vertical", 2))
sketch10.addConstraint(Sketcher.Constraint("Horizontal", 3))
sketch10.addConstraint(Sketcher.Constraint("DistanceX", 1, 1, 1, 2, Q("16 mm")))
sketch10.addConstraint(Sketcher.Constraint("DistanceY", 0, 2, 0, 1, Q("20 mm")))
sketch10.addConstraint(Sketcher.Constraint("DistanceX", 0, 2, -1, 1, Q("1 mm")))
sketch10.addConstraint(Sketcher.Constraint("DistanceY", -1, 1, 0, 2, Q("65 mm")))

# Sketch on XZ plane
sketch11 = body18.newObject("Sketcher::SketchObject", "Sketch010")
sketch11.AttachmentSupport = (doc.getObject("XZ_Plane017"), [""])
sketch11.MapMode = "FlatFace"
sketch11.addGeometry(Part.ArcOfCircle(Part.Circle(App.Vector(0, 50, 0), App.Vector(0, 0, 1), 10), math.radians(-66.421821), math.radians(246.421821)), False)
sketch11.addConstraint(Sketcher.Constraint("Symmetric", 0, 1, 0, 2, -2))
sketch11.addConstraint(Sketcher.Constraint("Radius", 0, Q("10 mm")))
sketch11.addConstraint(Sketcher.Constraint("DistanceY", -1, 1, 0, 3, Q("50 mm")))
sketch11.addConstraint(Sketcher.Constraint("DistanceX", -1, 1, 0, 1, Q("4 mm")))
doc.recompute()

additivepipe2 = body18.newObject("PartDesign::AdditivePipe", "AdditivePipe001")
additivepipe2.Profile = sketch10
additivepipe2.Spine = (sketch11, ["Edge1"])
body19 = doc.addObject("PartDesign::Body", "Body018")

# Sketch on YZ plane
sketch12 = body19.newObject("Sketcher::SketchObject", "Sketch011")
sketch12.AttachmentSupport = (doc.getObject("YZ_Plane018"), [""])
sketch12.MapMode = "FlatFace"
add_polygon(sketch12, [(15, 83.121211), (15, 65), (44, 83.121211)])  # lines 0-2
sketch12.addConstraint(Sketcher.Constraint("Vertical", 0))
sketch12.addConstraint(Sketcher.Constraint("Horizontal", 2))
sketch12.addConstraint(Sketcher.Constraint("DistanceX", 2, 2, 2, 1, Q("29 mm")))
sketch12.addConstraint(Sketcher.Constraint("Angle", 1, Q("32 deg")))
sketch12.addConstraint(Sketcher.Constraint("DistanceX", -1, 1, 0, 2, Q("15 mm")))
sketch12.addConstraint(Sketcher.Constraint("DistanceY", -1, 1, 0, 2, Q("65 mm")))

# Sketch on XZ plane
sketch13 = body19.newObject("Sketcher::SketchObject", "Sketch012")
sketch13.AttachmentSupport = (doc.getObject("XZ_Plane018"), [""])
sketch13.MapMode = "FlatFace"
sketch13.addGeometry(Part.ArcOfCircle(Part.Circle(App.Vector(0, 50, 0), App.Vector(0, 0, 1), 10), math.radians(-19.268777), math.radians(199.268777)), False)
sketch13.addConstraint(Sketcher.Constraint("Symmetric", 0, 1, 0, 2, -2))
sketch13.addConstraint(Sketcher.Constraint("Radius", 0, Q("10 mm")))
sketch13.addConstraint(Sketcher.Constraint("DistanceY", -1, 1, 0, 3, Q("50 mm")))
sketch13.addConstraint(Sketcher.Constraint("DistanceY", -1, 1, 0, 1, Q("46.7 mm")))
doc.recompute()

additivepipe3 = body19.newObject("PartDesign::AdditivePipe", "AdditivePipe002")
additivepipe3.Profile = sketch12
additivepipe3.Spine = (sketch13, ["Edge1"])
doc.recompute()

boolean17 = body19.newObject("PartDesign::Boolean", "Boolean016")
boolean17.Type = "Fuse"
boolean17.addObjects([body18])
body20 = doc.addObject("PartDesign::Body", "Body019")

# Sketch on XY plane
sketch14 = body20.newObject("Sketcher::SketchObject", "Sketch013")
sketch14.AttachmentSupport = (doc.getObject("XY_Plane019"), [""])
sketch14.MapMode = "FlatFace"
add_polygon(sketch14, [(-17, 50), (-17, 0), (17, 0), (17, 50)])  # lines 0-3
sketch14.addConstraint(Sketcher.Constraint("Vertical", 0))
sketch14.addConstraint(Sketcher.Constraint("Horizontal", 1))
sketch14.addConstraint(Sketcher.Constraint("Vertical", 2))
sketch14.addConstraint(Sketcher.Constraint("Horizontal", 3))
sketch14.addConstraint(Sketcher.Constraint("Symmetric", 0, 2, 1, 2, -1, 1))
sketch14.addConstraint(Sketcher.Constraint("DistanceX", 1, 1, 1, 2, Q("34 mm")))
sketch14.addConstraint(Sketcher.Constraint("DistanceY", 0, 2, 0, 1, Q("50 mm")))
pad8 = body20.newObject("PartDesign::Pad", "Pad007")
pad8.Profile = sketch14
pad8.Length = 70
doc.recompute()

boolean18 = body20.newObject("PartDesign::Boolean", "Boolean017")
boolean18.Type = "Cut"
boolean18.addObjects([body19])
doc.recompute()

boolean19 = body20.newObject("PartDesign::Boolean", "Boolean018")
boolean19.Type = "Cut"
boolean19.addObjects([body17])

doc.recompute()
